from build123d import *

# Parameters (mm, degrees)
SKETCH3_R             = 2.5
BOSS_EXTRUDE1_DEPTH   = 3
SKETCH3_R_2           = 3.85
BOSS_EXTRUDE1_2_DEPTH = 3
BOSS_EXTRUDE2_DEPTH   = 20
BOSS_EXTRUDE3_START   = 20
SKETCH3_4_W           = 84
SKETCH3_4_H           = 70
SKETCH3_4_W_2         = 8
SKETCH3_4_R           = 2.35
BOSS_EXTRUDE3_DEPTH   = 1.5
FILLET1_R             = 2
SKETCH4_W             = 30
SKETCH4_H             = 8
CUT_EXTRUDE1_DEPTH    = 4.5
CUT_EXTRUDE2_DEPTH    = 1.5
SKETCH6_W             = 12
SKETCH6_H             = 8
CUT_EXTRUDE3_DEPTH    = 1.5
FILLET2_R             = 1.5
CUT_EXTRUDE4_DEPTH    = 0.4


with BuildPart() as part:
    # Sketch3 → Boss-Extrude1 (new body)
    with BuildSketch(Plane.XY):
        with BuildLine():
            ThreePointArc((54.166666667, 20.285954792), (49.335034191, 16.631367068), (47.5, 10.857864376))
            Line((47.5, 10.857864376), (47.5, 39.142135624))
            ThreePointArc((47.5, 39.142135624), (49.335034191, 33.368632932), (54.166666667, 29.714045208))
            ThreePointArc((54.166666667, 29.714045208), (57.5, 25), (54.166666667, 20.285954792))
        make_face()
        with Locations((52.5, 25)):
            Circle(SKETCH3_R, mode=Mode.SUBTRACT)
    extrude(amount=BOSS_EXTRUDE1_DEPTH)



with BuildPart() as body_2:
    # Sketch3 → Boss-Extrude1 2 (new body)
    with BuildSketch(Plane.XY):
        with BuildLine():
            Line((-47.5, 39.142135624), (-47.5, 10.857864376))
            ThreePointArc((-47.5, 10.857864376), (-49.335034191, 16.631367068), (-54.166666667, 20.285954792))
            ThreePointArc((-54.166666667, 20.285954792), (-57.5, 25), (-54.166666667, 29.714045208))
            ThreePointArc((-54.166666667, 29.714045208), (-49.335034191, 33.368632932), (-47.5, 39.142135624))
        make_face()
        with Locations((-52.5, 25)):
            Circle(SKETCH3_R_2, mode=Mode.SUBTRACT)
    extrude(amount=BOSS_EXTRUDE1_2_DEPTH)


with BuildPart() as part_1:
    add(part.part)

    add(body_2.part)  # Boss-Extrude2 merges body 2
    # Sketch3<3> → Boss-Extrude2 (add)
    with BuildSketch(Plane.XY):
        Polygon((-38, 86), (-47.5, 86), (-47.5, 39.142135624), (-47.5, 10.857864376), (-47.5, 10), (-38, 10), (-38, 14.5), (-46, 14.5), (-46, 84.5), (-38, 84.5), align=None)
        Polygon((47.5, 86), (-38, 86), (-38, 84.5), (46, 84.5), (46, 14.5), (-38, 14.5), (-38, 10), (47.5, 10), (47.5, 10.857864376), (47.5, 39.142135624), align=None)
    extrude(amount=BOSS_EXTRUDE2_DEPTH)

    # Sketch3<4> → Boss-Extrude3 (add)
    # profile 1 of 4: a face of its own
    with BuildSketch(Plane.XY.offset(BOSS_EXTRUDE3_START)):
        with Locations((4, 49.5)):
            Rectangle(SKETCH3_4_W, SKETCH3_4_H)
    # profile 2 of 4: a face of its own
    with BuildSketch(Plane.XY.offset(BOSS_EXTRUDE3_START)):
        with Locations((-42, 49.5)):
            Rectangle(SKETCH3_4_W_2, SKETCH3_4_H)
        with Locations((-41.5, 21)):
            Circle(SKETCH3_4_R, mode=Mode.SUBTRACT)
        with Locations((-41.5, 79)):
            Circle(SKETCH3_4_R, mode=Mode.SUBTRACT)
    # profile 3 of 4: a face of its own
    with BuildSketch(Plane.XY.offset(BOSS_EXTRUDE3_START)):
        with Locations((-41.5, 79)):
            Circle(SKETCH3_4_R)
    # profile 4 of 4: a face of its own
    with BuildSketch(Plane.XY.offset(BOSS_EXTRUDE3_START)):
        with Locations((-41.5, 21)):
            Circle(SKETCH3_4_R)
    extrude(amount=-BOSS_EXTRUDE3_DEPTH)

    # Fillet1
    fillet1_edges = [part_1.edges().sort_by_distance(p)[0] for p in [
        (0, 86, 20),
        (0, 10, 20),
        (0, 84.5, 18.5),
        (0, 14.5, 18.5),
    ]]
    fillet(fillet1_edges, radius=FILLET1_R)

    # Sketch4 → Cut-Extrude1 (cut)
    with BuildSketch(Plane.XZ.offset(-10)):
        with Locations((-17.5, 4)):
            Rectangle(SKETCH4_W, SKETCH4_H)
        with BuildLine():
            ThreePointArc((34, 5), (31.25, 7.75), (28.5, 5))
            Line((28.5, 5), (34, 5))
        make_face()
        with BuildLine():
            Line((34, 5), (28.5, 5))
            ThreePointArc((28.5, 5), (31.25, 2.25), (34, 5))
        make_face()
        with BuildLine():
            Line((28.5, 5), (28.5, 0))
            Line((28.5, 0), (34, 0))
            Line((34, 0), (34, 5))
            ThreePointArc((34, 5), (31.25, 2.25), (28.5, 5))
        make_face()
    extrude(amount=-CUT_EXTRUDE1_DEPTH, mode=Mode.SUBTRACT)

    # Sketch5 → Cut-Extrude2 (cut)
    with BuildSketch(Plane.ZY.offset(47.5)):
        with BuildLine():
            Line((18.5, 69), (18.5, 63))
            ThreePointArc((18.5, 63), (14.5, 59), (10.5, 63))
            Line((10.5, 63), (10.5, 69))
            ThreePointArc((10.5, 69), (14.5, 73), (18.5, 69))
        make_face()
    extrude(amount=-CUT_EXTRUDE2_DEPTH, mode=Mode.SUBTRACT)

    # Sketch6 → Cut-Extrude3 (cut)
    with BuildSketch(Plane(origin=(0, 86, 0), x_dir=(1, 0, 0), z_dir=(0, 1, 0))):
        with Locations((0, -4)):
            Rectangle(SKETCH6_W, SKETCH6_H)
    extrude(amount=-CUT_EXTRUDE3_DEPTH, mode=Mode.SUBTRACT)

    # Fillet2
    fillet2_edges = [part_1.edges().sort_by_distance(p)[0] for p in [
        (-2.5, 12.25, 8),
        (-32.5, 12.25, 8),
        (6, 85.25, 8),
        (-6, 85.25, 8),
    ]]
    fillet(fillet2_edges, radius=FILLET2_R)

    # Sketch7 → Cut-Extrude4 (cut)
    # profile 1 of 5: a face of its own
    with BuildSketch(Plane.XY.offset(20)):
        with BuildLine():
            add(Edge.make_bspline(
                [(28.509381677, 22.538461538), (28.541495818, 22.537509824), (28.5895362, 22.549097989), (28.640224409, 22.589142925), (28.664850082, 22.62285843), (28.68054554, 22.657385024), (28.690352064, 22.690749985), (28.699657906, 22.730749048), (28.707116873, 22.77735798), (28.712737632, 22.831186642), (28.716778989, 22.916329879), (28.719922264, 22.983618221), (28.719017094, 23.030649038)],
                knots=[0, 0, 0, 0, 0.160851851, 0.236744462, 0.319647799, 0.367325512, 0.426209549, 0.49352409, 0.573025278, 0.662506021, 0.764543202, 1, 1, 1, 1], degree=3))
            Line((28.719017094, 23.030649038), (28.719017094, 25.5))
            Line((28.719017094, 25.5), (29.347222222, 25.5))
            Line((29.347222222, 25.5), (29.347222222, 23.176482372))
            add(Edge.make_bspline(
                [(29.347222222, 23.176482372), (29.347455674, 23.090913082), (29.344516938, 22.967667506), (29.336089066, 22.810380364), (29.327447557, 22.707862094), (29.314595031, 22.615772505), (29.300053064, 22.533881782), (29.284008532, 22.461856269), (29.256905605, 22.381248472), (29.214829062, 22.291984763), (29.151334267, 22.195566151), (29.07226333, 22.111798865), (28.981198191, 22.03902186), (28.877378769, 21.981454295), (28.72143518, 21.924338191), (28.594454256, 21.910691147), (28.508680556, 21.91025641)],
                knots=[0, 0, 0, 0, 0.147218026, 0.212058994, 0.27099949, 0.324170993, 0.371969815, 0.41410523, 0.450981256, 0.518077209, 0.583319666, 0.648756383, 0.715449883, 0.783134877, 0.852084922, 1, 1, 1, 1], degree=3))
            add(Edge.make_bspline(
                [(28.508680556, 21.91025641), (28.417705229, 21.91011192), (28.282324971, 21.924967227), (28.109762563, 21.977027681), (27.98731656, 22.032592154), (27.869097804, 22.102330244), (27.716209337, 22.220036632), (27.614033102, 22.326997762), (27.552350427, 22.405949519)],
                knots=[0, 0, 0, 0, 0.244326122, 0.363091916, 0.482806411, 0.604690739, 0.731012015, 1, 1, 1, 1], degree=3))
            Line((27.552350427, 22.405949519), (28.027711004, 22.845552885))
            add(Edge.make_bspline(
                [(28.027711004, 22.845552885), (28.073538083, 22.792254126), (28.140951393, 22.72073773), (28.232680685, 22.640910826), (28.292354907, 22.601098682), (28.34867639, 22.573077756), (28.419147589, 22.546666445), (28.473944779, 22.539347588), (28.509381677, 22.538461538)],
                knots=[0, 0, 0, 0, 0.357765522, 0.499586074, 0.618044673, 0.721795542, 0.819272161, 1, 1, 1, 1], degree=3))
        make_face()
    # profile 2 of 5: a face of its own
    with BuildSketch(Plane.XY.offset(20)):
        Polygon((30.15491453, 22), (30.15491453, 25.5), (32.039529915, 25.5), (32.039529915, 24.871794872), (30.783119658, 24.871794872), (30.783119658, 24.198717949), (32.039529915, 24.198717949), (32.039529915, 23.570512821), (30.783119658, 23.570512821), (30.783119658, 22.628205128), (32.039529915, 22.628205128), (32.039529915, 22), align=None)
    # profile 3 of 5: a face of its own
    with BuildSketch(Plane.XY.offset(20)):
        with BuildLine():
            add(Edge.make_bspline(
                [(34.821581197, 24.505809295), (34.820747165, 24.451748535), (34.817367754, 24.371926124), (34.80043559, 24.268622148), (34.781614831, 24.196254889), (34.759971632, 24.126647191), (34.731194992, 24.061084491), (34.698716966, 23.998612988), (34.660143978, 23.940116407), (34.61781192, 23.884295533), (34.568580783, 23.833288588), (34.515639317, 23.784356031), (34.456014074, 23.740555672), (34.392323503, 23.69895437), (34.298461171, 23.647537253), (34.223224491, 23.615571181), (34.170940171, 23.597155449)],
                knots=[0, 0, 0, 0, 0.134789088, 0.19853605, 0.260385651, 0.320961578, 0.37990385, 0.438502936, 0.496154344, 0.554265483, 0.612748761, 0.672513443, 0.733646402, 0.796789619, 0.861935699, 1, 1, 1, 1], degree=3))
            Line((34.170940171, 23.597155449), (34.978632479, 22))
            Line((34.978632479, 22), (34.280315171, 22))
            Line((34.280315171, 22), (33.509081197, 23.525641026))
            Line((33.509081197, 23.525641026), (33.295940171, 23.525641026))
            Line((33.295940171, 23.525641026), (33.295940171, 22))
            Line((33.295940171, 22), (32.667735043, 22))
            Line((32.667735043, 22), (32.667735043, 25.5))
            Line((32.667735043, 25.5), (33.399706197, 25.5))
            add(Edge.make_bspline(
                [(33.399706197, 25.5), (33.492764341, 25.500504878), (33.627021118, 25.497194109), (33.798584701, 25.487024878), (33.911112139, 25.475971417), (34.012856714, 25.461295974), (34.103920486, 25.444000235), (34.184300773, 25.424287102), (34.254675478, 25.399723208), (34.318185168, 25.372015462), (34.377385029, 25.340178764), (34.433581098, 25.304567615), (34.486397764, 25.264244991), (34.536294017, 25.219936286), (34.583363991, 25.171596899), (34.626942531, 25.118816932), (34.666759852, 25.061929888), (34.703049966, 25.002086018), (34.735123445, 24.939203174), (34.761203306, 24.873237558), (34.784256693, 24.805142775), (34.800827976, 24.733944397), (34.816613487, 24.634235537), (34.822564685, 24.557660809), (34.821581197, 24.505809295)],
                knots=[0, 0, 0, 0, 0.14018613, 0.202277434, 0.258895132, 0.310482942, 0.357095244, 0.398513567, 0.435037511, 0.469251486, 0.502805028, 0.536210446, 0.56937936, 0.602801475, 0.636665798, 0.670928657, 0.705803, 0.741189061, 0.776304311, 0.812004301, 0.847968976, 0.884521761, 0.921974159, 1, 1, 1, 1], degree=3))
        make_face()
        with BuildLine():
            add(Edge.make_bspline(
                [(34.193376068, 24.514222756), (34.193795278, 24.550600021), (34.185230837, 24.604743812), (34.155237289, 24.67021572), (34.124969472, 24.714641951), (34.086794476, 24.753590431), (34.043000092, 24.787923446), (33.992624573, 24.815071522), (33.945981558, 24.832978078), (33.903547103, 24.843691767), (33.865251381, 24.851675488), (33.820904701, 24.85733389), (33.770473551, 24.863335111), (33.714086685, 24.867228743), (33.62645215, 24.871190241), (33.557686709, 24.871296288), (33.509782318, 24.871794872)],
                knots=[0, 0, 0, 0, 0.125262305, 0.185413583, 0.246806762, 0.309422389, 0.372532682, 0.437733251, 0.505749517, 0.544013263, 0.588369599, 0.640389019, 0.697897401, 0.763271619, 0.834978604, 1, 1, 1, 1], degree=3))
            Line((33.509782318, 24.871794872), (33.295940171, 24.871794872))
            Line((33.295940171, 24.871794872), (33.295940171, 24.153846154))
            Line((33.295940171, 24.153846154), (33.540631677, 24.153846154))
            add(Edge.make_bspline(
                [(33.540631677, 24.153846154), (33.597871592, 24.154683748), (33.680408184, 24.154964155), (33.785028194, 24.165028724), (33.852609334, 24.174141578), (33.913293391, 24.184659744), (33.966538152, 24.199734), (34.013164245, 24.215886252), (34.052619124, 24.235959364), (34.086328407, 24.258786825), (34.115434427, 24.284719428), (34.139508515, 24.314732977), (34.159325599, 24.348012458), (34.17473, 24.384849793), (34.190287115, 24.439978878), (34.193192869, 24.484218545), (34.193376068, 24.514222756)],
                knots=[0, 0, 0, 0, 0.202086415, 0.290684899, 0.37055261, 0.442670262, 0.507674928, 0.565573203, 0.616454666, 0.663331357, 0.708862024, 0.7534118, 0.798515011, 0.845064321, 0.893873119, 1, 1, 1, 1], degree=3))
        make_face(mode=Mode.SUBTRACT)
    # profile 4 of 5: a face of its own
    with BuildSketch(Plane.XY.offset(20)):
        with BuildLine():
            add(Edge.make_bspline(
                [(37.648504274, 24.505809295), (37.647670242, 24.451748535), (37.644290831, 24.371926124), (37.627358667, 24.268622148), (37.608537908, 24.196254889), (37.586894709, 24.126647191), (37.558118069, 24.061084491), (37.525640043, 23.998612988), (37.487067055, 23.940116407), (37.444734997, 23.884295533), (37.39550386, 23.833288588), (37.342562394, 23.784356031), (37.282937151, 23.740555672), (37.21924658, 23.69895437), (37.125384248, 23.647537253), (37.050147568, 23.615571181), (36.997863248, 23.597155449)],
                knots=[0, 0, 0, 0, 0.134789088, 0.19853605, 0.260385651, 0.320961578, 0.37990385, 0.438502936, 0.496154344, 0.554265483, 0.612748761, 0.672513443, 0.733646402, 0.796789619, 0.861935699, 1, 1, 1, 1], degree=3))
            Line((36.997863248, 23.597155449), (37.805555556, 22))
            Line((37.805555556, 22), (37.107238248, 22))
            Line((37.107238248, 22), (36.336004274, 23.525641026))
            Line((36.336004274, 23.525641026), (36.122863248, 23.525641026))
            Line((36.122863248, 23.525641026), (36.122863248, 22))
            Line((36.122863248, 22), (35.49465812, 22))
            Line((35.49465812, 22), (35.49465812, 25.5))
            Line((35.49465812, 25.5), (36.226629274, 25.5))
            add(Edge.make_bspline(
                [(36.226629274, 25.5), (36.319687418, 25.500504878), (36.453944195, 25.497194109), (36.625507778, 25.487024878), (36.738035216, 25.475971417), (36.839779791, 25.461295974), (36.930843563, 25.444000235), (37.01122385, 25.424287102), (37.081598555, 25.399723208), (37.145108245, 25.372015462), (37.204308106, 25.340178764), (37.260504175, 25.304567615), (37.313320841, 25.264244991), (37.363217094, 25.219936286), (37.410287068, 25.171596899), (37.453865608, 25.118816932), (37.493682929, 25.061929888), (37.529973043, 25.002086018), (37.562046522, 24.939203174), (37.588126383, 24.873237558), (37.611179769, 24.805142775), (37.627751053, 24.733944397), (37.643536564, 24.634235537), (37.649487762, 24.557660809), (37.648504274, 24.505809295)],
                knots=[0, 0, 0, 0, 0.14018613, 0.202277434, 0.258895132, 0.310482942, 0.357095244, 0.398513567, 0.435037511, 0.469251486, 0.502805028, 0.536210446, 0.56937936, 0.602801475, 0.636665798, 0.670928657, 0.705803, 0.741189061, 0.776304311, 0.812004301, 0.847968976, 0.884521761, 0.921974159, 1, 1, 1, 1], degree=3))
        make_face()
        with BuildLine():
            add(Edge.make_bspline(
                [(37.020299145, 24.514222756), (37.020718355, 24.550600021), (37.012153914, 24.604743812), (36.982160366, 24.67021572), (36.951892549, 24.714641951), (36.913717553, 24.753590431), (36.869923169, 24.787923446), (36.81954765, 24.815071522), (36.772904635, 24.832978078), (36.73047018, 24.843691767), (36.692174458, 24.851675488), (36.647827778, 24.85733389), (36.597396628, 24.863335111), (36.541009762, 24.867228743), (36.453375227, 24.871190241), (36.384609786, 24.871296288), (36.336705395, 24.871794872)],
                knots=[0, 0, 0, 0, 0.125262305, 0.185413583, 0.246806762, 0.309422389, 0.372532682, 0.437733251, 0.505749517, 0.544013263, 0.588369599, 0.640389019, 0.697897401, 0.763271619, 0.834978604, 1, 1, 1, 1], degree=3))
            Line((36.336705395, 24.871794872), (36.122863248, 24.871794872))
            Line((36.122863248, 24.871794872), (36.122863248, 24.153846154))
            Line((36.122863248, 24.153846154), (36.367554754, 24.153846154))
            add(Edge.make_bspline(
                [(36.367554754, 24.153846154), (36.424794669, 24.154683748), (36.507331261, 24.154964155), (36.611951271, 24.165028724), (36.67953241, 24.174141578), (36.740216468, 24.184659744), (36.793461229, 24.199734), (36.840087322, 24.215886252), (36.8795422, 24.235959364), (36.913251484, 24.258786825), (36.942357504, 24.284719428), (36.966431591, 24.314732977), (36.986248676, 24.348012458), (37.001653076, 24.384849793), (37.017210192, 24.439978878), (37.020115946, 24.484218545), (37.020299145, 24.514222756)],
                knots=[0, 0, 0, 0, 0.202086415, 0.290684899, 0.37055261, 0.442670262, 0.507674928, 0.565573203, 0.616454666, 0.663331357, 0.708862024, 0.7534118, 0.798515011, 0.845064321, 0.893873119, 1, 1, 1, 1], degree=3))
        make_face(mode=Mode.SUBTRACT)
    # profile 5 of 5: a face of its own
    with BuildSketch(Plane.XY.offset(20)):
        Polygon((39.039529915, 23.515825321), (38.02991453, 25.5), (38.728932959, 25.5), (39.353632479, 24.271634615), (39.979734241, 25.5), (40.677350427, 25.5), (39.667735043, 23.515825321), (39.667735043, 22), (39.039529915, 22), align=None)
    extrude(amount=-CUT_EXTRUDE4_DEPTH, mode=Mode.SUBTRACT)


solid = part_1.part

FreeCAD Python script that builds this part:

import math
import FreeCAD as App
import Part
import Sketcher

V = App.Vector


def edges_at(feature, points):
    """Names of the edges that pass closest to the given points."""
    edges = feature.Shape.Edges
    near = lambda p: min(range(len(edges)), key=lambda i: edges[i].distToShape(Part.Vertex(*p))[0])
    return sorted({f"Edge{near(p) + 1}" for p in points})

doc = App.newDocument("Part")
body = doc.addObject("PartDesign::Body", "Body")

# Sketch on XY plane
sketch1 = doc.addObject("Sketcher::SketchObject", "Sketch")
body.addObject(sketch1)
sketch1.AttachmentSupport = (doc.XY_Plane, [""])
sketch1.MapMode = "FlatFace"
sketch1.addGeometry([
    Part.ArcOfCircle(Part.Circle(V(57.5, 10.857864, 0), V(0, 0, 1), 10), math.radians(109.471221), math.radians(180)),  # 0
    Part.ArcOfCircle(Part.Circle(V(52.5, 25, 0), V(0, 0, 1), 5), math.radians(-70.528779), math.radians(70.528779)),  # 1
    Part.ArcOfCircle(Part.Circle(V(57.5, 39.142136, 0), V(0, 0, 1), 10), math.radians(-180), math.radians(-109.471221)),  # 2
    Part.LineSegment(V(47.5, 39.142136, 0), V(47.5, 10.857864, 0)),  # 3
    Part.Circle(V(52.5, 25, 0), V(0, 0, 1), 2.5),  # 4
], False)
sketch1.addConstraint([
    Sketcher.Constraint("Tangent", 0, 1, 1, 1),
    Sketcher.Constraint("Tangent", 1, 2, 2, 2),
    Sketcher.Constraint("Tangent", 2, 1, 3, 1),
    Sketcher.Constraint("Tangent", 3, 2, 0, 2),
    Sketcher.Constraint("Vertical", 3),
    Sketcher.Constraint("Coincident", 4, 3, 1, 3),
    Sketcher.Constraint("Equal", 0, 2),
    Sketcher.Constraint("Diameter", 4, 5.0),
    Sketcher.Constraint("Radius", 0, 10.0),
    Sketcher.Constraint("Radius", 1, 5.0),
    Sketcher.Constraint("DistanceY", -1, 1, 1, 3, 25.0),
    Sketcher.Constraint("DistanceX", 1, 3, 0, 3, 5.0),
    Sketcher.Constraint("DistanceX", -1, 1, 0, 3, 57.5),
])
pad1 = doc.addObject("PartDesign::Pad", "Pad")
body.addObject(pad1)
pad1.Profile = sketch1
pad1.Length = 3
body2 = doc.addObject("PartDesign::Body", "Body001")

# Sketch on XY plane
sketch2 = doc.addObject("Sketcher::SketchObject", "Sketch001")
body2.addObject(sketch2)
sketch2.AttachmentSupport = (doc.getObject("XY_Plane001"), [""])
sketch2.MapMode = "FlatFace"
sketch2.addGeometry([
    Part.LineSegment(V(-47.5, 10.857864, 0), V(-47.5, 39.142136, 0)),  # 0
    Part.ArcOfCircle(Part.Circle(V(-57.5, 39.142136, 0), V(0, 0, 1), 10), math.radians(-70.528779), math.radians(0)),  # 1
    Part.ArcOfCircle(Part.Circle(V(-52.5, 25, 0), V(0, 0, 1), 5), math.radians(109.471221), math.radians(250.528779)),  # 2
    Part.ArcOfCircle(Part.Circle(V(-57.5, 10.857864, 0), V(0, 0, 1), 10), math.radians(0), math.radians(70.528779)),  # 3
    Part.Circle(V(-52.5, 25, 0), V(0, 0, 1), 3.85),  # 4
], False)
sketch2.addConstraint([
    Sketcher.Constraint("Tangent", 0, 2, 1, 2),
    Sketcher.Constraint("Tangent", 1, 1, 2, 1),
    Sketcher.Constraint("Tangent", 2, 2, 3, 2),
    Sketcher.Constraint("Tangent", 3, 1, 0, 1),
    Sketcher.Constraint("Vertical", 0),
    Sketcher.Constraint("Coincident", 4, 3, 2, 3),
    Sketcher.Constraint("Equal", 1, 3),
    Sketcher.Constraint("Radius", 1, 10.0),
    Sketcher.Constraint("Radius", 2, 5.0),
    Sketcher.Constraint("Diameter", 4, 7.7),
    Sketcher.Constraint("DistanceY", -1, 1, 2, 3, 25.0),
    Sketcher.Constraint("DistanceX", 1, 3, 2, 3, 5.0),
    Sketcher.Constraint("DistanceX", 1, 3, -1, 1, 57.5),
])
pad2 = doc.addObject("PartDesign::Pad", "Pad001")
body2.addObject(pad2)
pad2.Profile = sketch2
pad2.Length = 3
body.AllowCompound = True
doc.recompute()

boolean = doc.addObject("PartDesign::Boolean", "Boolean")
body.addObject(boolean)
boolean.Type = "Fuse"
boolean.addObjects([body2])

# Sketch on XY plane
sketch3 = doc.addObject("Sketcher::SketchObject", "Sketch002")
body.addObject(sketch3)
sketch3.AttachmentSupport = (doc.XY_Plane, [""])
sketch3.MapMode = "FlatFace"
sketch3.addGeometry([
    Part.LineSegment(V(-47.5, 86, 0), V(-47.5, 10, 0)),  # 0
    Part.LineSegment(V(-47.5, 10, 0), V(47.5, 10, 0)),  # 1
    Part.LineSegment(V(47.5, 10, 0), V(47.5, 86, 0)),  # 2
    Part.LineSegment(V(47.5, 86, 0), V(-47.5, 86, 0)),  # 3
    Part.LineSegment(V(-46, 14.5, 0), V(-46, 84.5, 0)),  # 4
    Part.LineSegment(V(-46, 84.5, 0), V(46, 84.5, 0)),  # 5
    Part.LineSegment(V(46, 84.5, 0), V(46, 14.5, 0)),  # 6
    Part.LineSegment(V(46, 14.5, 0), V(-46, 14.5, 0)),  # 7
], False)
sketch3.addConstraint([
    Sketcher.Constraint("Coincident", 0, 2, 1, 1),
    Sketcher.Constraint("Coincident", 1, 2, 2, 1),
    Sketcher.Constraint("Coincident", 2, 2, 3, 1),
    Sketcher.Constraint("Coincident", 3, 2, 0, 1),
    Sketcher.Constraint("Coincident", 4, 2, 5, 1),
    Sketcher.Constraint("Coincident", 5, 2, 6, 1),
    Sketcher.Constraint("Coincident", 6, 2, 7, 1),
    Sketcher.Constraint("Coincident", 7, 2, 4, 1),
    Sketcher.Constraint("Vertical", 0),
    Sketcher.Constraint("Horizontal", 1),
    Sketcher.Constraint("Vertical", 2),
    Sketcher.Constraint("Horizontal", 3),
    Sketcher.Constraint("Vertical", 4),
    Sketcher.Constraint("Horizontal", 5),
    Sketcher.Constraint("Vertical", 6),
    Sketcher.Constraint("Horizontal", 7),
    Sketcher.Constraint("DistanceX", 1, 1, 1, 2, 95.0),
    Sketcher.Constraint("DistanceX", 5, 1, 5, 2, 92.0),
    Sketcher.Constraint("DistanceY", 0, 2, 0, 1, 76.0),
    Sketcher.Constraint("DistanceY", 4, 1, 4, 2, 70.0),
    Sketcher.Constraint("DistanceY", -1, 1, 0, 2, 10.0),
    Sketcher.Constraint("DistanceX", 4, 2, -1, 1, 46.0),
    Sketcher.Constraint("DistanceX", 0, 2, -1, 1, 47.5),
    Sketcher.Constraint("DistanceY", -1, 1, 4, 2, 84.5),
])
pad3 = doc.addObject("PartDesign::Pad", "Pad002")
body.addObject(pad3)
pad3.Profile = sketch3
pad3.Length = 20

# Sketch on XY plane
sketch4 = doc.addObject("Sketcher::SketchObject", "Sketch003")
body.addObject(sketch4)
sketch4.AttachmentSupport = (doc.XY_Plane, [""])
sketch4.MapMode = "FlatFace"
sketch4.AttachmentOffset = App.Placement(V(0, 0, 20), App.Rotation())
sketch4.addGeometry([
    Part.LineSegment(V(46, 14.5, 0), V(46, 84.5, 0)),
    Part.LineSegment(V(46, 84.5, 0), V(-46, 84.5, 0)),
    Part.LineSegment(V(-46, 84.5, 0), V(-46, 14.5, 0)),
    Part.LineSegment(V(-46, 14.5, 0), V(46, 14.5, 0)),
], False)
sketch4.addConstraint([
    Sketcher.Constraint("Coincident", 0, 2, 1, 1),
    Sketcher.Constraint("Coincident", 1, 2, 2, 1),
    Sketcher.Constraint("Coincident", 2, 2, 3, 1),
    Sketcher.Constraint("Coincident", 3, 2, 0, 1),
    Sketcher.Constraint("Vertical", 0),
    Sketcher.Constraint("Horizontal", 1),
    Sketcher.Constraint("Vertical", 2),
    Sketcher.Constraint("Horizontal", 3),
    Sketcher.Constraint("DistanceX", 1, 2, 1, 1, 92.0),
    Sketcher.Constraint("DistanceY", 0, 1, 0, 2, 70.0),
    Sketcher.Constraint("DistanceX", -1, 1, 0, 2, 46.0),
    Sketcher.Constraint("DistanceY", -1, 1, 0, 2, 84.5),
])
pad4 = doc.addObject("PartDesign::Pad", "Pad003")
body.addObject(pad4)
pad4.Profile = sketch4
pad4.Length = 1.5
pad4.Reversed = True
doc.recompute()

fillet = doc.addObject("PartDesign::Fillet", "Fillet")
body.addObject(fillet)
fillet.Base = (pad4, edges_at(pad4, [
    (0, 86, 20),
    (0, 10, 20),
    (0, 84.5, 18.5),
    (0, 14.5, 18.5),
]))
fillet.Radius = 2

# Sketch on XZ plane
sketch5 = doc.addObject("Sketcher::SketchObject", "Sketch004")
body.addObject(sketch5)
sketch5.AttachmentSupport = (doc.XZ_Plane, [""])
sketch5.MapMode = "FlatFace"
sketch5.AttachmentOffset = App.Placement(V(0, 0, -10), App.Rotation())
sketch5.addGeometry([
    Part.LineSegment(V(-32.5, 8, 0), V(-32.5, 0, 0)),  # 0
    Part.LineSegment(V(-32.5, 0, 0), V(-2.5, 0, 0)),  # 1
    Part.LineSegment(V(-2.5, 0, 0), V(-2.5, 8, 0)),  # 2
    Part.LineSegment(V(-2.5, 8, 0), V(-32.5, 8, 0)),  # 3
    Part.ArcOfCircle(Part.Circle(V(31.25, 5, 0), V(0, 0, 1), 2.75), math.radians(0), math.radians(180)),  # 4
    Part.LineSegment(V(28.5, 5, 0), V(28.5, 0, 0)),  # 5
    Part.LineSegment(V(28.5, 0, 0), V(34, 0, 0)),  # 6
    Part.LineSegment(V(34, 0, 0), V(34, 5, 0)),  # 7
], False)
sketch5.addConstraint([
    Sketcher.Constraint("Coincident", 0, 2, 1, 1),
    Sketcher.Constraint("Coincident", 1, 2, 2, 1),
    Sketcher.Constraint("Coincident", 2, 2, 3, 1),
    Sketcher.Constraint("Coincident", 3, 2, 0, 1),
    Sketcher.Constraint("Tangent", 4, 2, 5, 1),
    Sketcher.Constraint("Coincident", 5, 2, 6, 1),
    Sketcher.Constraint("Coincident", 6, 2, 7, 1),
    Sketcher.Constraint("Tangent", 7, 2, 4, 1),
    Sketcher.Constraint("Vertical", 0),
    Sketcher.Constraint("Horizontal", 1),
    Sketcher.Constraint("Vertical", 2),
    Sketcher.Constraint("Horizontal", 3),
    Sketcher.Constraint("Vertical", 5),
    Sketcher.Constraint("Horizontal", 6),
    Sketcher.Constraint("Vertical", 7),
    Sketcher.Constraint("PointOnObject", 0, 2, -1),
    Sketcher.Constraint("PointOnObject", 5, 2, -1),
    Sketcher.Constraint("DistanceX", 1, 1, 1, 2, 30.0),
    Sketcher.Constraint("DistanceY", 0, 2, 0, 1, 8.0),
    Sketcher.Constraint("DistanceY", 5, 2, 5, 1, 5.0),
    Sketcher.Constraint("Radius", 4, 2.75),
    Sketcher.Constraint("DistanceX", -1, 1, 6, 2, 34.0),
    Sketcher.Constraint("DistanceX", 2, 2, 4, 2, 31.0),
])
pocket1 = doc.addObject("PartDesign::Pocket", "Pocket")
body.addObject(pocket1)
pocket1.Profile = sketch5
pocket1.Length = 4.5

# Sketch on YZ plane
sketch6 = doc.addObject("Sketcher::SketchObject", "Sketch005")
body.addObject(sketch6)
sketch6.AttachmentSupport = (doc.YZ_Plane, [""])
sketch6.MapMode = "FlatFace"
sketch6.AttachmentOffset = App.Placement(V(0, 0, -47.5), App.Rotation())
sketch6.addGeometry([
    Part.LineSegment(V(63, 18.5, 0), V(69, 18.5, 0)),
    Part.ArcOfCircle(Part.Circle(V(69, 14.5, 0), V(0, 0, 1), 4), math.radians(-90), math.radians(90)),
    Part.LineSegment(V(69, 10.5, 0), V(63, 10.5, 0)),
    Part.ArcOfCircle(Part.Circle(V(63, 14.5, 0), V(0, 0, 1), 4), math.radians(90), math.radians(270)),
], False)
sketch6.addConstraint([
    Sketcher.Constraint("Tangent", 0, 2, 1, 2),
    Sketcher.Constraint("Tangent", 1, 1, 2, 1),
    Sketcher.Constraint("Tangent", 2, 2, 3, 2),
    Sketcher.Constraint("Tangent", 3, 1, 0, 1),
    Sketcher.Constraint("Horizontal", 0),
    Sketcher.Constraint("Horizontal", 2),
    Sketcher.Constraint("Radius", 1, 4.0),
    Sketcher.Constraint("DistanceX", 0, 1, 0, 2, 6.0),
    Sketcher.Constraint("DistanceX", -1, 1, 1, 3, 69.0),
    Sketcher.Constraint("DistanceY", -1, 1, 1, 3, 14.5),
])
pocket2 = doc.addObject("PartDesign::Pocket", "Pocket001")
body.addObject(pocket2)
pocket2.Profile = sketch6
pocket2.Length = 1.5
pocket2.Reversed = True

# Sketch on XZ plane
sketch7 = doc.addObject("Sketcher::SketchObject", "Sketch006")
body.addObject(sketch7)
sketch7.AttachmentSupport = (doc.XZ_Plane, [""])
sketch7.MapMode = "FlatFace"
sketch7.AttachmentOffset = App.Placement(V(0, 0, -86), App.Rotation())
sketch7.addGeometry([
    Part.LineSegment(V(-6, 0, 0), V(-6, 8, 0)),
    Part.LineSegment(V(-6, 8, 0), V(6, 8, 0)),
    Part.LineSegment(V(6, 8, 0), V(6, 0, 0)),
    Part.LineSegment(V(6, 0, 0), V(-6, 0, 0)),
], False)
sketch7.addConstraint([
    Sketcher.Constraint("Coincident", 0, 2, 1, 1),
    Sketcher.Constraint("Coincident", 1, 2, 2, 1),
    Sketcher.Constraint("Coincident", 2, 2, 3, 1),
    Sketcher.Constraint("Coincident", 3, 2, 0, 1),
    Sketcher.Constraint("Vertical", 0),
    Sketcher.Constraint("Horizontal", 1),
    Sketcher.Constraint("Vertical", 2),
    Sketcher.Constraint("Horizontal", 3),
    Sketcher.Constraint("Symmetric", 2, 2, 3, 2, -1, 1),
    Sketcher.Constraint("DistanceX", 1, 1, 1, 2, 12.0),
    Sketcher.Constraint("DistanceY", 0, 1, 0, 2, 8.0),
])
pocket3 = doc.addObject("PartDesign::Pocket", "Pocket002")
body.addObject(pocket3)
pocket3.Profile = sketch7
pocket3.Length = 1.5
pocket3.Reversed = True
doc.recompute()

fillet2 = doc.addObject("PartDesign::Fillet", "Fillet001")
body.addObject(fillet2)
fillet2.Base = (pocket3, edges_at(pocket3, [
    (-2.5, 12.25, 8),
    (-32.5, 12.25, 8),
    (6, 85.25, 8),
    (-6, 85.25, 8),
]))
fillet2.Radius = 1.5

# Sketch on XY plane
sketch8 = doc.addObject("Sketcher::SketchObject", "Sketch007")
body.addObject(sketch8)
sketch8.AttachmentSupport = (doc.XY_Plane, [""])
sketch8.MapMode = "FlatFace"
sketch8.AttachmentOffset = App.Placement(V(0, 0, 20), App.Rotation())
sketch8.addGeometry([
    Part.BSplineCurve([V(28.509382, 22.538462, 0), V(28.541496, 22.53751, 0), V(28.589536, 22.549098, 0), V(28.640224, 22.589143, 0), V(28.66485, 22.622858, 0), V(28.680546, 22.657385, 0), V(28.690352, 22.69075, 0), V(28.699658, 22.730749, 0), V(28.707117, 22.777358, 0), V(28.712738, 22.831187, 0), V(28.716779, 22.91633, 0), V(28.719922, 22.983618, 0), V(28.719017, 23.030649, 0)], [4, 1, 1, 1, 1, 1, 1, 1, 1, 1, 4], [0, 0.160851851, 0.236744462, 0.319647799, 0.367325512, 0.426209549, 0.49352409, 0.573025278, 0.662506021, 0.764543202, 1], False, 3, [1, 1, 1, 1, 1, 1, 1, 1, 1, 1, 1, 1, 1], False),  # 0
    Part.BSplineCurve([V(28.027711, 22.845553, 0), V(28.073538, 22.792254, 0), V(28.140951, 22.720738, 0), V(28.232681, 22.640911, 0), V(28.292355, 22.601099, 0), V(28.348676, 22.573078, 0), V(28.419148, 22.546666, 0), V(28.473945, 22.539348, 0), V(28.509382, 22.538462, 0)], [4, 1, 1, 1, 1, 1, 4], [0, 0.357765522, 0.499586074, 0.618044673, 0.721795542, 0.819272161, 1], False, 3, [1, 1, 1, 1, 1, 1, 1, 1, 1], False),  # 1
    Part.LineSegment(V(28.027711, 22.845553, 0), V(27.55235, 22.40595, 0)),  # 2
    Part.BSplineCurve([V(28.508681, 21.910256, 0), V(28.417705, 21.910112, 0), V(28.282325, 21.924967, 0), V(28.109763, 21.977028, 0), V(27.987317, 22.032592, 0), V(27.869098, 22.10233, 0), V(27.716209, 22.220037, 0), V(27.614033, 22.326998, 0), V(27.55235, 22.40595, 0)], [4, 1, 1, 1, 1, 1, 4], [0, 0.244326122, 0.363091916, 0.482806411, 0.604690739, 0.731012015, 1], False, 3, [1, 1, 1, 1, 1, 1, 1, 1, 1], False),  # 3
    Part.BSplineCurve([V(29.347222, 23.176482, 0), V(29.347456, 23.090913, 0), V(29.344517, 22.967668, 0), V(29.336089, 22.81038, 0), V(29.327448, 22.707862, 0), V(29.314595, 22.615773, 0), V(29.300053, 22.533882, 0), V(29.284009, 22.461856, 0), V(29.256906, 22.381248, 0), V(29.214829, 22.291985, 0), V(29.151334, 22.195566, 0), V(29.072263, 22.111799, 0), V(28.981198, 22.039022, 0), V(28.877379, 21.981454, 0), V(28.721435, 21.924338, 0), V(28.594454, 21.910691, 0), V(28.508681, 21.910256, 0)], [4, 1, 1, 1, 1, 1, 1, 1, 1, 1, 1, 1, 1, 1, 4], [0, 0.147218026, 0.212058994, 0.27099949, 0.324170993, 0.371969815, 0.41410523, 0.450981256, 0.518077209, 0.583319666, 0.648756383, 0.715449883, 0.783134877, 0.852084922, 1], False, 3, [1, 1, 1, 1, 1, 1, 1, 1, 1, 1, 1, 1, 1, 1, 1, 1, 1], False),  # 4
    Part.LineSegment(V(29.347222, 23.176482, 0), V(29.347222, 25.5, 0)),  # 5
    Part.LineSegment(V(29.347222, 25.5, 0), V(28.719017, 25.5, 0)),  # 6
    Part.LineSegment(V(28.719017, 25.5, 0), V(28.719017, 23.030649, 0)),  # 7
    Part.LineSegment(V(30.154915, 25.5, 0), V(30.154915, 22, 0)),  # 8
    Part.LineSegment(V(30.154915, 22, 0), V(32.03953, 22, 0)),  # 9
    Part.LineSegment(V(32.03953, 22, 0), V(32.03953, 22.628205, 0)),  # 10
    Part.LineSegment(V(32.03953, 22.628205, 0), V(30.78312, 22.628205, 0)),  # 11
    Part.LineSegment(V(30.78312, 22.628205, 0), V(30.78312, 23.570513, 0)),  # 12
    Part.LineSegment(V(30.78312, 23.570513, 0), V(32.03953, 23.570513, 0)),  # 13
    Part.LineSegment(V(32.03953, 23.570513, 0), V(32.03953, 24.198718, 0)),  # 14
    Part.LineSegment(V(32.03953, 24.198718, 0), V(30.78312, 24.198718, 0)),  # 15
    Part.LineSegment(V(30.78312, 24.198718, 0), V(30.78312, 24.871795, 0)),  # 16
    Part.LineSegment(V(30.78312, 24.871795, 0), V(32.03953, 24.871795, 0)),  # 17
    Part.LineSegment(V(32.03953, 24.871795, 0), V(32.03953, 25.5, 0)),  # 18
    Part.LineSegment(V(32.03953, 25.5, 0), V(30.154915, 25.5, 0)),  # 19
    Part.BSplineCurve([V(34.821581, 24.505809, 0), V(34.820747, 24.451749, 0), V(34.817368, 24.371926, 0), V(34.800436, 24.268622, 0), V(34.781615, 24.196255, 0), V(34.759972, 24.126647, 0), V(34.731195, 24.061084, 0), V(34.698717, 23.998613, 0), V(34.660144, 23.940116, 0), V(34.617812, 23.884296, 0), V(34.568581, 23.833289, 0), V(34.515639, 23.784356, 0), V(34.456014, 23.740556, 0), V(34.392324, 23.698954, 0), V(34.298461, 23.647537, 0), V(34.223224, 23.615571, 0), V(34.17094, 23.597155, 0)], [4, 1, 1, 1, 1, 1, 1, 1, 1, 1, 1, 1, 1, 1, 4], [0, 0.134789088, 0.19853605, 0.260385651, 0.320961578, 0.37990385, 0.438502936, 0.496154344, 0.554265483, 0.612748761, 0.672513443, 0.733646402, 0.796789619, 0.861935699, 1], False, 3, [1, 1, 1, 1, 1, 1, 1, 1, 1, 1, 1, 1, 1, 1, 1, 1, 1], False),  # 20
    Part.BSplineCurve([V(33.399706, 25.5, 0), V(33.492764, 25.500505, 0), V(33.627021, 25.497194, 0), V(33.798585, 25.487025, 0), V(33.911112, 25.475971, 0), V(34.012857, 25.461296, 0), V(34.10392, 25.444, 0), V(34.184301, 25.424287, 0), V(34.254675, 25.399723, 0), V(34.318185, 25.372015, 0), V(34.377385, 25.340179, 0), V(34.433581, 25.304568, 0), V(34.486398, 25.264245, 0), V(34.536294, 25.219936, 0), V(34.583364, 25.171597, 0), V(34.626943, 25.118817, 0), V(34.66676, 25.06193, 0), V(34.70305, 25.002086, 0), V(34.735123, 24.939203, 0), V(34.761203, 24.873238, 0), V(34.784257, 24.805143, 0), V(34.800828, 24.733944, 0), V(34.816613, 24.634236, 0), V(34.822565, 24.557661, 0), V(34.821581, 24.505809, 0)], [4, 1, 1, 1, 1, 1, 1, 1, 1, 1, 1, 1, 1, 1, 1, 1, 1, 1, 1, 1, 1, 1, 4], [0, 0.14018613, 0.202277434, 0.258895132, 0.310482942, 0.357095244, 0.398513567, 0.435037511, 0.469251486, 0.502805028, 0.536210446, 0.56937936, 0.602801475, 0.636665798, 0.670928657, 0.705803, 0.741189061, 0.776304311, 0.812004301, 0.847968976, 0.884521761, 0.921974159, 1], False, 3, [1, 1, 1, 1, 1, 1, 1, 1, 1, 1, 1, 1, 1, 1, 1, 1, 1, 1, 1, 1, 1, 1, 1, 1, 1], False),  # 21
    Part.LineSegment(V(33.399706, 25.5, 0), V(32.667735, 25.5, 0)),  # 22
    Part.LineSegment(V(32.667735, 25.5, 0), V(32.667735, 22, 0)),  # 23
    Part.LineSegment(V(32.667735, 22, 0), V(33.29594, 22, 0)),  # 24
    Part.LineSegment(V(33.29594, 22, 0), V(33.29594, 23.525641, 0)),  # 25
    Part.LineSegment(V(33.29594, 23.525641, 0), V(33.509081, 23.525641, 0)),  # 26
    Part.LineSegment(V(33.509081, 23.525641, 0), V(34.280315, 22, 0)),  # 27
    Part.LineSegment(V(34.280315, 22, 0), V(34.978632, 22, 0)),  # 28
    Part.LineSegment(V(34.978632, 22, 0), V(34.17094, 23.597155, 0)),  # 29
    Part.BSplineCurve([V(33.540632, 24.153846, 0), V(33.597872, 24.154684, 0), V(33.680408, 24.154964, 0), V(33.785028, 24.165029, 0), V(33.852609, 24.174142, 0), V(33.913293, 24.18466, 0), V(33.966538, 24.199734, 0), V(34.013164, 24.215886, 0), V(34.052619, 24.235959, 0), V(34.086328, 24.258787, 0), V(34.115434, 24.284719, 0), V(34.139509, 24.314733, 0), V(34.159326, 24.348012, 0), V(34.17473, 24.38485, 0), V(34.190287, 24.439979, 0), V(34.193193, 24.484219, 0), V(34.193376, 24.514223, 0)], [4, 1, 1, 1, 1, 1, 1, 1, 1, 1, 1, 1, 1, 1, 4], [0, 0.202086415, 0.290684899, 0.37055261, 0.442670262, 0.507674928, 0.565573203, 0.616454666, 0.663331357, 0.708862024, 0.7534118, 0.798515011, 0.845064321, 0.893873119, 1], False, 3, [1, 1, 1, 1, 1, 1, 1, 1, 1, 1, 1, 1, 1, 1, 1, 1, 1], False),  # 30
    Part.LineSegment(V(33.540632, 24.153846, 0), V(33.29594, 24.153846, 0)),  # 31
    Part.LineSegment(V(33.29594, 24.153846, 0), V(33.29594, 24.871795, 0)),  # 32
    Part.LineSegment(V(33.29594, 24.871795, 0), V(33.509782, 24.871795, 0)),  # 33
    Part.BSplineCurve([V(34.193376, 24.514223, 0), V(34.193795, 24.5506, 0), V(34.185231, 24.604744, 0), V(34.155237, 24.670216, 0), V(34.124969, 24.714642, 0), V(34.086794, 24.75359, 0), V(34.043, 24.787923, 0), V(33.992625, 24.815072, 0), V(33.945982, 24.832978, 0), V(33.903547, 24.843692, 0), V(33.865251, 24.851675, 0), V(33.820905, 24.857334, 0), V(33.770474, 24.863335, 0), V(33.714087, 24.867229, 0), V(33.626452, 24.87119, 0), V(33.557687, 24.871296, 0), V(33.509782, 24.871795, 0)], [4, 1, 1, 1, 1, 1, 1, 1, 1, 1, 1, 1, 1, 1, 4], [0, 0.125262305, 0.185413583, 0.246806762, 0.309422389, 0.372532682, 0.437733251, 0.505749517, 0.544013263, 0.588369599, 0.640389019, 0.697897401, 0.763271619, 0.834978604, 1], False, 3, [1, 1, 1, 1, 1, 1, 1, 1, 1, 1, 1, 1, 1, 1, 1, 1, 1], False),  # 34
    Part.BSplineCurve([V(37.648504, 24.505809, 0), V(37.64767, 24.451749, 0), V(37.644291, 24.371926, 0), V(37.627359, 24.268622, 0), V(37.608538, 24.196255, 0), V(37.586895, 24.126647, 0), V(37.558118, 24.061084, 0), V(37.52564, 23.998613, 0), V(37.487067, 23.940116, 0), V(37.444735, 23.884296, 0), V(37.395504, 23.833289, 0), V(37.342562, 23.784356, 0), V(37.282937, 23.740556, 0), V(37.219247, 23.698954, 0), V(37.125384, 23.647537, 0), V(37.050148, 23.615571, 0), V(36.997863, 23.597155, 0)], [4, 1, 1, 1, 1, 1, 1, 1, 1, 1, 1, 1, 1, 1, 4], [0, 0.134789088, 0.19853605, 0.260385651, 0.320961578, 0.37990385, 0.438502936, 0.496154344, 0.554265483, 0.612748761, 0.672513443, 0.733646402, 0.796789619, 0.861935699, 1], False, 3, [1, 1, 1, 1, 1, 1, 1, 1, 1, 1, 1, 1, 1, 1, 1, 1, 1], False),  # 35
    Part.BSplineCurve([V(36.226629, 25.5, 0), V(36.319687, 25.500505, 0), V(36.453944, 25.497194, 0), V(36.625508, 25.487025, 0), V(36.738035, 25.475971, 0), V(36.83978, 25.461296, 0), V(36.930844, 25.444, 0), V(37.011224, 25.424287, 0), V(37.081599, 25.399723, 0), V(37.145108, 25.372015, 0), V(37.204308, 25.340179, 0), V(37.260504, 25.304568, 0), V(37.313321, 25.264245, 0), V(37.363217, 25.219936, 0), V(37.410287, 25.171597, 0), V(37.453866, 25.118817, 0), V(37.493683, 25.06193, 0), V(37.529973, 25.002086, 0), V(37.562047, 24.939203, 0), V(37.588126, 24.873238, 0), V(37.61118, 24.805143, 0), V(37.627751, 24.733944, 0), V(37.643537, 24.634236, 0), V(37.649488, 24.557661, 0), V(37.648504, 24.505809, 0)], [4, 1, 1, 1, 1, 1, 1, 1, 1, 1, 1, 1, 1, 1, 1, 1, 1, 1, 1, 1, 1, 1, 4], [0, 0.14018613, 0.202277434, 0.258895132, 0.310482942, 0.357095244, 0.398513567, 0.435037511, 0.469251486, 0.502805028, 0.536210446, 0.56937936, 0.602801475, 0.636665798, 0.670928657, 0.705803, 0.741189061, 0.776304311, 0.812004301, 0.847968976, 0.884521761, 0.921974159, 1], False, 3, [1, 1, 1, 1, 1, 1, 1, 1, 1, 1, 1, 1, 1, 1, 1, 1, 1, 1, 1, 1, 1, 1, 1, 1, 1], False),  # 36
    Part.LineSegment(V(36.226629, 25.5, 0), V(35.494658, 25.5, 0)),  # 37
    Part.LineSegment(V(35.494658, 25.5, 0), V(35.494658, 22, 0)),  # 38
    Part.LineSegment(V(35.494658, 22, 0), V(36.122863, 22, 0)),  # 39
    Part.LineSegment(V(36.122863, 22, 0), V(36.122863, 23.525641, 0)),  # 40
    Part.LineSegment(V(36.122863, 23.525641, 0), V(36.336004, 23.525641, 0)),  # 41
    Part.LineSegment(V(36.336004, 23.525641, 0), V(37.107238, 22, 0)),  # 42
    Part.LineSegment(V(37.107238, 22, 0), V(37.805556, 22, 0)),  # 43
    Part.LineSegment(V(37.805556, 22, 0), V(36.997863, 23.597155, 0)),  # 44
    Part.BSplineCurve([V(36.367555, 24.153846, 0), V(36.424795, 24.154684, 0), V(36.507331, 24.154964, 0), V(36.611951, 24.165029, 0), V(36.679532, 24.174142, 0), V(36.740216, 24.18466, 0), V(36.793461, 24.199734, 0), V(36.840087, 24.215886, 0), V(36.879542, 24.235959, 0), V(36.913251, 24.258787, 0), V(36.942358, 24.284719, 0), V(36.966432, 24.314733, 0), V(36.986249, 24.348012, 0), V(37.001653, 24.38485, 0), V(37.01721, 24.439979, 0), V(37.020116, 24.484219, 0), V(37.020299, 24.514223, 0)], [4, 1, 1, 1, 1, 1, 1, 1, 1, 1, 1, 1, 1, 1, 4], [0, 0.202086415, 0.290684899, 0.37055261, 0.442670262, 0.507674928, 0.565573203, 0.616454666, 0.663331357, 0.708862024, 0.7534118, 0.798515011, 0.845064321, 0.893873119, 1], False, 3, [1, 1, 1, 1, 1, 1, 1, 1, 1, 1, 1, 1, 1, 1, 1, 1, 1], False),  # 45
    Part.LineSegment(V(36.367555, 24.153846, 0), V(36.122863, 24.153846, 0)),  # 46
    Part.LineSegment(V(36.122863, 24.153846, 0), V(36.122863, 24.871795, 0)),  # 47
    Part.LineSegment(V(36.122863, 24.871795, 0), V(36.336705, 24.871795, 0)),  # 48
    Part.BSplineCurve([V(37.020299, 24.514223, 0), V(37.020718, 24.5506, 0), V(37.012154, 24.604744, 0), V(36.98216, 24.670216, 0), V(36.951893, 24.714642, 0), V(36.913718, 24.75359, 0), V(36.869923, 24.787923, 0), V(36.819548, 24.815072, 0), V(36.772905, 24.832978, 0), V(36.73047, 24.843692, 0), V(36.692174, 24.851675, 0), V(36.647828, 24.857334, 0), V(36.597397, 24.863335, 0), V(36.54101, 24.867229, 0), V(36.453375, 24.87119, 0), V(36.38461, 24.871296, 0), V(36.336705, 24.871795, 0)], [4, 1, 1, 1, 1, 1, 1, 1, 1, 1, 1, 1, 1, 1, 4], [0, 0.125262305, 0.185413583, 0.246806762, 0.309422389, 0.372532682, 0.437733251, 0.505749517, 0.544013263, 0.588369599, 0.640389019, 0.697897401, 0.763271619, 0.834978604, 1], False, 3, [1, 1, 1, 1, 1, 1, 1, 1, 1, 1, 1, 1, 1, 1, 1, 1, 1], False),  # 49
    Part.LineSegment(V(38.029915, 25.5, 0), V(39.03953, 23.515825, 0)),  # 50
    Part.LineSegment(V(39.03953, 23.515825, 0), V(39.03953, 22, 0)),  # 51
    Part.LineSegment(V(39.03953, 22, 0), V(39.667735, 22, 0)),  # 52
    Part.LineSegment(V(39.667735, 22, 0), V(39.667735, 23.515825, 0)),  # 53
    Part.LineSegment(V(39.667735, 23.515825, 0), V(40.67735, 25.5, 0)),  # 54
    Part.LineSegment(V(40.67735, 25.5, 0), V(39.979734, 25.5, 0)),  # 55
    Part.LineSegment(V(39.979734, 25.5, 0), V(39.353632, 24.271635, 0)),  # 56
    Part.LineSegment(V(39.353632, 24.271635, 0), V(38.728933, 25.5, 0)),  # 57
    Part.LineSegment(V(38.728933, 25.5, 0), V(38.029915, 25.5, 0)),  # 58
], False)
sketch8.addConstraint([
    Sketcher.Constraint("Block", 0),
    Sketcher.Constraint("Block", 1),
    Sketcher.Constraint("Block", 3),
    Sketcher.Constraint("Block", 4),
    Sketcher.Constraint("Block", 20),
    Sketcher.Constraint("Block", 21),
    Sketcher.Constraint("Block", 30),
    Sketcher.Constraint("Block", 34),
    Sketcher.Constraint("Block", 35),
    Sketcher.Constraint("Block", 36),
    Sketcher.Constraint("Block", 45),
    Sketcher.Constraint("Block", 49),
    Sketcher.Constraint("Coincident", 1, 1, 2, 1),
    Sketcher.Constraint("Coincident", 2, 2, 3, 2),
    Sketcher.Constraint("Coincident", 4, 1, 5, 1),
    Sketcher.Constraint("Coincident", 5, 2, 6, 1),
    Sketcher.Constraint("Coincident", 6, 2, 7, 1),
    Sketcher.Constraint("Coincident", 7, 2, 0, 2),
    Sketcher.Constraint("Coincident", 8, 2, 9, 1),
    Sketcher.Constraint("Coincident", 9, 2, 10, 1),
    Sketcher.Constraint("Coincident", 10, 2, 11, 1),
    Sketcher.Constraint("Coincident", 11, 2, 12, 1),
    Sketcher.Constraint("Coincident", 12, 2, 13, 1),
    Sketcher.Constraint("Coincident", 13, 2, 14, 1),
    Sketcher.Constraint("Coincident", 14, 2, 15, 1),
    Sketcher.Constraint("Coincident", 15, 2, 16, 1),
    Sketcher.Constraint("Coincident", 16, 2, 17, 1),
    Sketcher.Constraint("Coincident", 17, 2, 18, 1),
    Sketcher.Constraint("Coincident", 18, 2, 19, 1),
    Sketcher.Constraint("Coincident", 19, 2, 8, 1),
    Sketcher.Constraint("Coincident", 21, 1, 22, 1),
    Sketcher.Constraint("Coincident", 22, 2, 23, 1),
    Sketcher.Constraint("Coincident", 23, 2, 24, 1),
    Sketcher.Constraint("Coincident", 24, 2, 25, 1),
    Sketcher.Constraint("Coincident", 25, 2, 26, 1),
    Sketcher.Constraint("Coincident", 26, 2, 27, 1),
    Sketcher.Constraint("Coincident", 27, 2, 28, 1),
    Sketcher.Constraint("Coincident", 28, 2, 29, 1),
    Sketcher.Constraint("Coincident", 29, 2, 20, 2),
    Sketcher.Constraint("Coincident", 30, 1, 31, 1),
    Sketcher.Constraint("Coincident", 31, 2, 32, 1),
    Sketcher.Constraint("Coincident", 32, 2, 33, 1),
    Sketcher.Constraint("Coincident", 33, 2, 34, 2),
    Sketcher.Constraint("Coincident", 36, 1, 37, 1),
    Sketcher.Constraint("Coincident", 37, 2, 38, 1),
    Sketcher.Constraint("Coincident", 38, 2, 39, 1),
    Sketcher.Constraint("Coincident", 39, 2, 40, 1),
    Sketcher.Constraint("Coincident", 40, 2, 41, 1),
    Sketcher.Constraint("Coincident", 41, 2, 42, 1),
    Sketcher.Constraint("Coincident", 42, 2, 43, 1),
    Sketcher.Constraint("Coincident", 43, 2, 44, 1),
    Sketcher.Constraint("Coincident", 44, 2, 35, 2),
    Sketcher.Constraint("Coincident", 45, 1, 46, 1),
    Sketcher.Constraint("Coincident", 46, 2, 47, 1),
    Sketcher.Constraint("Coincident", 47, 2, 48, 1),
    Sketcher.Constraint("Coincident", 48, 2, 49, 2),
    Sketcher.Constraint("Coincident", 50, 2, 51, 1),
    Sketcher.Constraint("Coincident", 51, 2, 52, 1),
    Sketcher.Constraint("Coincident", 52, 2, 53, 1),
    Sketcher.Constraint("Coincident", 53, 2, 54, 1),
    Sketcher.Constraint("Coincident", 54, 2, 55, 1),
    Sketcher.Constraint("Coincident", 55, 2, 56, 1),
    Sketcher.Constraint("Coincident", 56, 2, 57, 1),
    Sketcher.Constraint("Coincident", 57, 2, 58, 1),
    Sketcher.Constraint("Coincident", 58, 2, 50, 1),
    Sketcher.Constraint("Vertical", 5),
    Sketcher.Constraint("Horizontal", 6),
    Sketcher.Constraint("Vertical", 7),
    Sketcher.Constraint("Vertical", 8),
    Sketcher.Constraint("Horizontal", 9),
    Sketcher.Constraint("Vertical", 10),
    Sketcher.Constraint("Horizontal", 11),
    Sketcher.Constraint("Vertical", 12),
    Sketcher.Constraint("Horizontal", 13),
    Sketcher.Constraint("Vertical", 14),
    Sketcher.Constraint("Horizontal", 15),
    Sketcher.Constraint("Vertical", 16),
    Sketcher.Constraint("Horizontal", 17),
    Sketcher.Constraint("Vertical", 18),
    Sketcher.Constraint("Horizontal", 19),
    Sketcher.Constraint("Horizontal", 22),
    Sketcher.Constraint("Vertical", 23),
    Sketcher.Constraint("Horizontal", 24),
    Sketcher.Constraint("Vertical", 25),
    Sketcher.Constraint("Horizontal", 26),
    Sketcher.Constraint("Horizontal", 28),
    Sketcher.Constraint("Horizontal", 31),
    Sketcher.Constraint("Vertical", 32),
    Sketcher.Constraint("Horizontal", 33),
    Sketcher.Constraint("Horizontal", 37),
    Sketcher.Constraint("Vertical", 38),
    Sketcher.Constraint("Horizontal", 39),
    Sketcher.Constraint("Vertical", 40),
    Sketcher.Constraint("Horizontal", 41),
    Sketcher.Constraint("Horizontal", 43),
    Sketcher.Constraint("Horizontal", 46),
    Sketcher.Constraint("Vertical", 47),
    Sketcher.Constraint("Horizontal", 48),
    Sketcher.Constraint("Vertical", 51),
    Sketcher.Constraint("Horizontal", 52),
    Sketcher.Constraint("Vertical", 53),
    Sketcher.Constraint("Horizontal", 55),
    Sketcher.Constraint("Horizontal", 58),
    Sketcher.Constraint("DistanceY", 8, 2, 8, 1, 3.5),
    Sketcher.Constraint("DistanceY", 23, 2, 23, 1, 3.5),
    Sketcher.Constraint("DistanceY", 38, 2, 38, 1, 3.5),
    Sketcher.Constraint("DistanceY", -1, 1, 8, 2, 22.0),
    Sketcher.Constraint("DistanceY", -1, 1, 27, 2, 22.0),
    Sketcher.Constraint("DistanceY", -1, 1, 42, 2, 22.0),
    Sketcher.Constraint("DistanceY", -1, 1, 51, 2, 22.0),
    Sketcher.Constraint("DistanceY", -1, 1, 5, 2, 25.5),
    Sketcher.Constraint("DistanceY", -1, 1, 54, 2, 25.5),
    Sketcher.Constraint("DistanceY", -1, 1, 57, 2, 25.5),
    Sketcher.Constraint("DistanceX", 25, 2, 29, 2, 0.875),
    Sketcher.Constraint("DistanceX", 31, 2, 29, 2, 0.875),
    Sketcher.Constraint("DistanceX", 40, 2, 44, 2, 0.875),
    Sketcher.Constraint("DistanceX", 46, 2, 44, 2, 0.875),
    Sketcher.Constraint("DistanceX", 53, 2, 55, 2, 0.311999),
    Sketcher.Constraint("DistanceX", 11, 2, 11, 1, 1.25641),
    Sketcher.Constraint("DistanceX", 13, 1, 13, 2, 1.25641),
    Sketcher.Constraint("DistanceX", 15, 2, 15, 1, 1.25641),
    Sketcher.Constraint("DistanceX", 17, 1, 17, 2, 1.25641),
    Sketcher.Constraint("DistanceX", 22, 2, 22, 1, 0.731971),
    Sketcher.Constraint("DistanceX", 26, 1, 26, 2, 0.213141),
    Sketcher.Constraint("DistanceX", 37, 2, 37, 1, 0.731971),
    Sketcher.Constraint("DistanceX", 41, 1, 41, 2, 0.213141),
    Sketcher.Constraint("DistanceX", 58, 2, 58, 1, 0.699018),
    Sketcher.Constraint("DistanceY", 25, 1, 25, 2, 1.525641),
    Sketcher.Constraint("DistanceY", 40, 1, 40, 2, 1.525641),
    Sketcher.Constraint("DistanceX", 56, 2, 55, 2, 0.626102),
    Sketcher.Constraint("DistanceX", 57, 2, 55, 2, 1.250801),
    Sketcher.Constraint("Distance", 29, 1.789769),
    Sketcher.Constraint("Distance", 44, 1.789769),
    Sketcher.Constraint("Distance", 50, 2.226269),
    Sketcher.Constraint("Distance", 54, 2.226269),
    Sketcher.Constraint("Distance", 57, 1.37809),
    Sketcher.Constraint("DistanceX", 9, 1, 9, 2, 1.884615),
    Sketcher.Constraint("DistanceX", 28, 1, 28, 2, 0.698317),
    Sketcher.Constraint("DistanceX", 43, 1, 43, 2, 0.698317),
    Sketcher.Constraint("DistanceX", 52, 1, 52, 2, 0.628205),
    Sketcher.Constraint("DistanceX", 55, 2, 55, 1, 0.697616),
    Sketcher.Constraint("DistanceY", 10, 1, 10, 2, 0.628205),
    Sketcher.Constraint("DistanceY", 12, 1, 12, 2, 0.942308),
    Sketcher.Constraint("DistanceY", 14, 1, 14, 2, 0.628205),
    Sketcher.Constraint("DistanceY", 16, 1, 16, 2, 0.673077),
    Sketcher.Constraint("DistanceX", -1, 1, 9, 2, 32.03953),
    Sketcher.Constraint("DistanceX", -1, 1, 50, 2, 39.03953),
])
pocket4 = doc.addObject("PartDesign::Pocket", "Pocket003")
body.addObject(pocket4)
pocket4.Profile = sketch8
pocket4.Length = 0.4

doc.recompute()
